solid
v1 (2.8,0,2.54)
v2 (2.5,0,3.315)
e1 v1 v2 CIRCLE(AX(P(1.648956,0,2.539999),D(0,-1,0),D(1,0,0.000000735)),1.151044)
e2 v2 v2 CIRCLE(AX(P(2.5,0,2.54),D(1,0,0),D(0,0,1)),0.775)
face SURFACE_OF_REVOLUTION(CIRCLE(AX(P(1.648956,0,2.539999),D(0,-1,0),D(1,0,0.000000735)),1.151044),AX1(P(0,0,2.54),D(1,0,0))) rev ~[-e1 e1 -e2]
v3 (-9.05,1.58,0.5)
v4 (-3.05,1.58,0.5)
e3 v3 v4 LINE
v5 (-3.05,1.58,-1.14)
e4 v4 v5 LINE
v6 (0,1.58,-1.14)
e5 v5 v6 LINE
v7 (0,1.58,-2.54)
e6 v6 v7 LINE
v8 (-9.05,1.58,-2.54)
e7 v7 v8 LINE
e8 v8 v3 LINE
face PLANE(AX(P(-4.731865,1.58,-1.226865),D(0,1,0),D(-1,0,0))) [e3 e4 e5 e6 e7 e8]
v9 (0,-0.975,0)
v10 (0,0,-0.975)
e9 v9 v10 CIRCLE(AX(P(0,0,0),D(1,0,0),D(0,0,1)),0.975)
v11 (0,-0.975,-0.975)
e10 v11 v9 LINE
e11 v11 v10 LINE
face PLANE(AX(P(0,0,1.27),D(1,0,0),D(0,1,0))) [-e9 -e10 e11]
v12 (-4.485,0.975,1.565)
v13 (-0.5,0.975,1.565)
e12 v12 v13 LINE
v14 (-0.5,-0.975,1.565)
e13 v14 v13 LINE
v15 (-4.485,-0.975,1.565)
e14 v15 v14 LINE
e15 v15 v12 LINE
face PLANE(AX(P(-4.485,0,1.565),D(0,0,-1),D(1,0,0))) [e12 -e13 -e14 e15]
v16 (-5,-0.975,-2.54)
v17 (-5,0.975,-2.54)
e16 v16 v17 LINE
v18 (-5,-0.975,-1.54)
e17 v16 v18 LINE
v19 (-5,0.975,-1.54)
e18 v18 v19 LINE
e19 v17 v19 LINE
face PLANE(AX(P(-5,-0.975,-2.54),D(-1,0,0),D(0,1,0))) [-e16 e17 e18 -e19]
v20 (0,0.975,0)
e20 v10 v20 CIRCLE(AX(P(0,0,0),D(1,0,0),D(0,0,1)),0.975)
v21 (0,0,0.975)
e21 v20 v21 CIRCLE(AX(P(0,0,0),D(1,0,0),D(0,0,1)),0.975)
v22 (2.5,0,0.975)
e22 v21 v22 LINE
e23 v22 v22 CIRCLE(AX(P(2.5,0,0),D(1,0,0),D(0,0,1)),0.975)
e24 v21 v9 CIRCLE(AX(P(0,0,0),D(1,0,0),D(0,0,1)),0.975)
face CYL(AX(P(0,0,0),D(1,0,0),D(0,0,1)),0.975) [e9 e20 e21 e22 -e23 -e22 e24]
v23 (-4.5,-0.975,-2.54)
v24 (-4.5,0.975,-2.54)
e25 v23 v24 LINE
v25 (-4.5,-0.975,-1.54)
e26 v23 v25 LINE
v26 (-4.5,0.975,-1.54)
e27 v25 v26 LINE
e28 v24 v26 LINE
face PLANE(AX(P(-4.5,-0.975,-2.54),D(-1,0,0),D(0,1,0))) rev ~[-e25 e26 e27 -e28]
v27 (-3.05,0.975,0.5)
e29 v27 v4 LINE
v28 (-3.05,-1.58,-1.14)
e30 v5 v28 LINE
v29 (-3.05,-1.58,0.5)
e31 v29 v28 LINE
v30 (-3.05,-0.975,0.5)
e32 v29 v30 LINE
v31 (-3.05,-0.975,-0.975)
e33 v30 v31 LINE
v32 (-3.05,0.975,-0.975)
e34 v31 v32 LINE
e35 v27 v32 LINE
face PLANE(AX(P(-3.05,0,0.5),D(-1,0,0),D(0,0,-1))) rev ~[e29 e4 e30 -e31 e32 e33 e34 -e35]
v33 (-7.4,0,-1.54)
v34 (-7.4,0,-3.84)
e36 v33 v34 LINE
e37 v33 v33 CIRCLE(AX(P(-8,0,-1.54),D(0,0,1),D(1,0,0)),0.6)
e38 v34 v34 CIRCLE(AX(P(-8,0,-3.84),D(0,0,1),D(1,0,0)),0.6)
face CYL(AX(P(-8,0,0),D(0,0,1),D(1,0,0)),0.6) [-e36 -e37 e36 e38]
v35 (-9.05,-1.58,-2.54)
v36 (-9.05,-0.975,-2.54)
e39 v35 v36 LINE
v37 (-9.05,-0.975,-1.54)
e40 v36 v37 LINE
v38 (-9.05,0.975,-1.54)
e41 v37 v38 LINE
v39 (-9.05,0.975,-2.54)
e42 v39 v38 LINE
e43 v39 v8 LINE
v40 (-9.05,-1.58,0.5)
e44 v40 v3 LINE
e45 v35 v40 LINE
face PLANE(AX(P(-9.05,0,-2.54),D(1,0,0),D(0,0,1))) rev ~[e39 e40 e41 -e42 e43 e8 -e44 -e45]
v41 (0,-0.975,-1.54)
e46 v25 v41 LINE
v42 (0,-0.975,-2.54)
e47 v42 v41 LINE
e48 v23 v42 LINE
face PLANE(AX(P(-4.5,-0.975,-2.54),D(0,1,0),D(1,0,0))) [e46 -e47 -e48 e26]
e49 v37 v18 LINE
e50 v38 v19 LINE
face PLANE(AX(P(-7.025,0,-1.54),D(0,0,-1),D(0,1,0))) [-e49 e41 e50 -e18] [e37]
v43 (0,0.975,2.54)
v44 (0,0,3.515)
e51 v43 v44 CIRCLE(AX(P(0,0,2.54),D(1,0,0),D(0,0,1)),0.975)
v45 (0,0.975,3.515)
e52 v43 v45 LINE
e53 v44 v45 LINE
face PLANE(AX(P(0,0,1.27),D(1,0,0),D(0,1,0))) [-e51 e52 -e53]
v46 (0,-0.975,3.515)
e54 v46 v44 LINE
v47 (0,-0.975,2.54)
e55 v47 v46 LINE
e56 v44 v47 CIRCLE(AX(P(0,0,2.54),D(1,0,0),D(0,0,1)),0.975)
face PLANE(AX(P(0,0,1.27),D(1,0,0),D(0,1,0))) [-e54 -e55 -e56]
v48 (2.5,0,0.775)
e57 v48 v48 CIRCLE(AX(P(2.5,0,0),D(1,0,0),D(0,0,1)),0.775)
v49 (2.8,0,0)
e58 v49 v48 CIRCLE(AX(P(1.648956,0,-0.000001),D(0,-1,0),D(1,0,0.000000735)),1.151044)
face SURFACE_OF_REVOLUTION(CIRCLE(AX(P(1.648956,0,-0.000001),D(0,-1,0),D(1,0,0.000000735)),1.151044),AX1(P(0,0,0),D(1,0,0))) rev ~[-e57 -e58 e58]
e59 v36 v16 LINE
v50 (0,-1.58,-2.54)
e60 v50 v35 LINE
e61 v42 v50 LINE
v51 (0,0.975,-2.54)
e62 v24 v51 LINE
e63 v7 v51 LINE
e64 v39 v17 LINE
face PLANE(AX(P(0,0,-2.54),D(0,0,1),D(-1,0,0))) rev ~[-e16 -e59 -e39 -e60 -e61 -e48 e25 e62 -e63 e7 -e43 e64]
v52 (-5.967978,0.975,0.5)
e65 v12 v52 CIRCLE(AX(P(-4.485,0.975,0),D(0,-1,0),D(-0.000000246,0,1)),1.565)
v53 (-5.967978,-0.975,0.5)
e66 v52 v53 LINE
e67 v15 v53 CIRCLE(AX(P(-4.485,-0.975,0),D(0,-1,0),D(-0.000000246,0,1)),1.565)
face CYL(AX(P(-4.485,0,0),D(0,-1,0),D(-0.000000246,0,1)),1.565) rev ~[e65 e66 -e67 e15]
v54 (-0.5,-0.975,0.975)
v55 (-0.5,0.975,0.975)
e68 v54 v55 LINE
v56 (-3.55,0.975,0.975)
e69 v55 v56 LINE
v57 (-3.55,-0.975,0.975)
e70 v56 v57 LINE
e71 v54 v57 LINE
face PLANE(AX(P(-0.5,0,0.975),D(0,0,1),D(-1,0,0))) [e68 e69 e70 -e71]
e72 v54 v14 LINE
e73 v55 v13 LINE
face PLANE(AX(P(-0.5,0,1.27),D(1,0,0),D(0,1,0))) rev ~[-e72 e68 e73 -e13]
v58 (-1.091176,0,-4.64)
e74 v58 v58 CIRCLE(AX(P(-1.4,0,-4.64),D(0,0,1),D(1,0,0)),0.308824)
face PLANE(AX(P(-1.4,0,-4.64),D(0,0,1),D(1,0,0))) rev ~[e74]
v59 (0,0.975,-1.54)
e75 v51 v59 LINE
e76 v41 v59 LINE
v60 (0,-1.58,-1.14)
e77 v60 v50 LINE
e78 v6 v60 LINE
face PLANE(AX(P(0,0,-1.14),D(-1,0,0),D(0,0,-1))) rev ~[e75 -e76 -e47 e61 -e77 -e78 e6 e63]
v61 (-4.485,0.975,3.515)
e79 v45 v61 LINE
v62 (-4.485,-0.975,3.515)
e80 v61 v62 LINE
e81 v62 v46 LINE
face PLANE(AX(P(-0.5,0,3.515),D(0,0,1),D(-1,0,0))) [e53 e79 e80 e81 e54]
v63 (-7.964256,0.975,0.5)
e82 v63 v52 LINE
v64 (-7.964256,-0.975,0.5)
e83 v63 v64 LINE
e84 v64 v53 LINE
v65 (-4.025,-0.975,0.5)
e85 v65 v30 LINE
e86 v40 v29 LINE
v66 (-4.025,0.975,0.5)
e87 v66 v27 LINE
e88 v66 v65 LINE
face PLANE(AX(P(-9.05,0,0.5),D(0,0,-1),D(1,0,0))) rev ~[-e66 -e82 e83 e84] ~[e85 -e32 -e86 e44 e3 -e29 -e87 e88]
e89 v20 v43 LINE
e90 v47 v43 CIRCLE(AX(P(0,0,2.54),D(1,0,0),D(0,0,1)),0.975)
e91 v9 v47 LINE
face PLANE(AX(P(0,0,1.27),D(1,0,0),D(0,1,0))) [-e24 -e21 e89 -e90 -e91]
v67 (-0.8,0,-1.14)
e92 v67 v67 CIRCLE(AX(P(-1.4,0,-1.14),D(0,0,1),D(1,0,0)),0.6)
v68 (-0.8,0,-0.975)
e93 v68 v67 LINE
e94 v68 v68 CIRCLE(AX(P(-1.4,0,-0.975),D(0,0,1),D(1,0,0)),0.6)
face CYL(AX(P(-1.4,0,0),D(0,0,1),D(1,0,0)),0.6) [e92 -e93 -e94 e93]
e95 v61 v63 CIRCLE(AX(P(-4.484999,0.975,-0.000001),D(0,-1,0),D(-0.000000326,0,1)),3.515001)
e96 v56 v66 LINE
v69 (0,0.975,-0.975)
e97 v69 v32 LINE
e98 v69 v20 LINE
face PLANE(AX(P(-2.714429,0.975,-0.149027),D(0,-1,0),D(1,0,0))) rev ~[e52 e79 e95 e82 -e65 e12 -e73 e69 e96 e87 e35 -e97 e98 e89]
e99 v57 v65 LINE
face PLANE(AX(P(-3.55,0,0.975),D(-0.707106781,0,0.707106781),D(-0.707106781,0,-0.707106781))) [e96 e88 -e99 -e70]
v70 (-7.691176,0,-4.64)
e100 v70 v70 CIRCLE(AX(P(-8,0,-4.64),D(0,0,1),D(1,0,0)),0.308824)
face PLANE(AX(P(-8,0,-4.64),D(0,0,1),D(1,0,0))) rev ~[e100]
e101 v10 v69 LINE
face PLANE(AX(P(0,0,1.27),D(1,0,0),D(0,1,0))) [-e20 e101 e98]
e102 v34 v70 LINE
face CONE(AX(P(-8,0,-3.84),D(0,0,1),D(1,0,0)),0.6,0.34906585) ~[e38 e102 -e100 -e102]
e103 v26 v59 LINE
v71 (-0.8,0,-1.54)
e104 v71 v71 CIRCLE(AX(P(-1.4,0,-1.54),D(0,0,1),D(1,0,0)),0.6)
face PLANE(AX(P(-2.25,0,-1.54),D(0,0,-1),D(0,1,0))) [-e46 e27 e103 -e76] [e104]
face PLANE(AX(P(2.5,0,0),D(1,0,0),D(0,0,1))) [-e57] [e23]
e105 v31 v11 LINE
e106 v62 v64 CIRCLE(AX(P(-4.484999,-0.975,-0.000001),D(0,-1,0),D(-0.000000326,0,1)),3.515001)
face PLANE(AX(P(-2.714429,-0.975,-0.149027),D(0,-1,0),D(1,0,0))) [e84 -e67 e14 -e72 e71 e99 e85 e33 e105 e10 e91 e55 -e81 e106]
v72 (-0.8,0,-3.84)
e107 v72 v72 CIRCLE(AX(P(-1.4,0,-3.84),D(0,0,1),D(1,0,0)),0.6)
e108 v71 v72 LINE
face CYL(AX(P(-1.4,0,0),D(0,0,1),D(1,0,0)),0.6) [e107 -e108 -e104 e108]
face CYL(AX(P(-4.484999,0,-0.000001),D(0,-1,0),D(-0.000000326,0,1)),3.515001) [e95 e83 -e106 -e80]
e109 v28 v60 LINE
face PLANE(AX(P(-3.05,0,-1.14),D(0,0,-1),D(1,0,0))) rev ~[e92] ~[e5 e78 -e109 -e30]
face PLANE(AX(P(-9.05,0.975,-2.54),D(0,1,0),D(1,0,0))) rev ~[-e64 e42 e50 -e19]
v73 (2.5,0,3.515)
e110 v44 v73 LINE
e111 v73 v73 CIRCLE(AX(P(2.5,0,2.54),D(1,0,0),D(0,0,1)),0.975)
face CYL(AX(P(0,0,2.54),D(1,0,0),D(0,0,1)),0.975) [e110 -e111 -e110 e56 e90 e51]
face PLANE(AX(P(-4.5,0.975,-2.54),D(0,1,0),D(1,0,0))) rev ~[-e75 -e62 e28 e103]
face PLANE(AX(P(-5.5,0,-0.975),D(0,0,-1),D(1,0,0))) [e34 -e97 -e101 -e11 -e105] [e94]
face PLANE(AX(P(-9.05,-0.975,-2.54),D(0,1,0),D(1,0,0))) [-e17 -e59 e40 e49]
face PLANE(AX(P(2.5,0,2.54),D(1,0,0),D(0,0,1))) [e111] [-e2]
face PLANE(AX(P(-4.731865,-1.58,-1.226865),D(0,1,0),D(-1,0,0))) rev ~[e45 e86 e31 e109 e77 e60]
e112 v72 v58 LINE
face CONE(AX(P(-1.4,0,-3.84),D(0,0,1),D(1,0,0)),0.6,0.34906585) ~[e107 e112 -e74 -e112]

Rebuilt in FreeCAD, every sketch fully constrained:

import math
import FreeCAD as App
import Part
import Sketcher

V = App.Vector
Q = App.Units.Quantity


def edges_at(feature, points):
    """Names of the edges that pass closest to the given points."""
    edges = feature.Shape.Edges
    near = lambda p: min(range(len(edges)), key=lambda i: edges[i].distToShape(Part.Vertex(*p))[0])
    return sorted({f"Edge{near(p) + 1}" for p in points})


def add_polygon(sketch, points):
    """Adds a closed chain of lines whose ends are joined by coincident constraints."""
    first, n = sketch.GeometryCount, len(points)
    for a, b in zip(points, points[1:] + points[:1]):
        sketch.addGeometry(Part.LineSegment(App.Vector(*a, 0), App.Vector(*b, 0)), False)
    for i in range(n):
        sketch.addConstraint(Sketcher.Constraint("Coincident", first + i, 2, first + (i + 1) % n, 1))

doc = App.newDocument("Part")
body = doc.addObject("PartDesign::Body", "Body")

sketch1 = doc.addObject("Sketcher::SketchObject", "Sketch")
body.addObject(sketch1)
sketch1.AttachmentSupport = (doc.YZ_Plane, [""])
sketch1.MapMode = "FlatFace"
add_polygon(sketch1, [(-0.975, 3.515), (-0.975, -0.975), (0.975, -0.975), (0.975, 3.515)])
sketch1.addConstraint([
    Sketcher.Constraint("Vertical", 0),
    Sketcher.Constraint("Horizontal", 1),
    Sketcher.Constraint("Vertical", 2),
    Sketcher.Constraint("Horizontal", 3),
    Sketcher.Constraint("DistanceX", 1, 1, 1, 2, Q("1.95 mm")),
    Sketcher.Constraint("DistanceY", 0, 2, 0, 1, Q("4.49 mm")),
    Sketcher.Constraint("DistanceX", 0, 2, -1, 1, Q("0.975 mm")),
    Sketcher.Constraint("DistanceY", 0, 2, -1, 1, Q("0.975 mm")),
])
pad1 = doc.addObject("PartDesign::Pad", "Pad")
body.addObject(pad1)
pad1.Profile = sketch1
pad1.Length = 0.5
pad1.Reversed = True

sketch2 = doc.addObject("Sketcher::SketchObject", "Sketch001")
body.addObject(sketch2)
sketch2.AttachmentSupport = (doc.XZ_Plane, [""])
sketch2.MapMode = "FlatFace"
sketch2.addGeometry([
    Part.LineSegment(V(0, 0.975, 0), V(0, 0, 0)),
    Part.LineSegment(V(0, 0, 0), V(2.8, 0, 0)),
    Part.ArcOfCircle(Part.Circle(V(1.648956, -0.000001, 0), V(0, 0, 1), 1.151044), math.radians(0.000042), math.radians(42.322477)),
    Part.LineSegment(V(2.5, 0.775, 0), V(2.5, 0.975, 0)),
    Part.LineSegment(V(2.5, 0.975, 0), V(0, 0.975, 0)),
], False)
sketch2.addConstraint([
    Sketcher.Constraint("Coincident", 0, 2, 1, 1),
    Sketcher.Constraint("Coincident", 1, 2, 2, 1),
    Sketcher.Constraint("Coincident", 2, 2, 3, 1),
    Sketcher.Constraint("Coincident", 3, 2, 4, 1),
    Sketcher.Constraint("Coincident", 4, 2, 0, 1),
    Sketcher.Constraint("Vertical", 0),
    Sketcher.Constraint("Horizontal", 1),
    Sketcher.Constraint("Vertical", 3),
    Sketcher.Constraint("Horizontal", 4),
    Sketcher.Constraint("Coincident", 0, 2, -1, 1),
    Sketcher.Constraint("PointOnObject", 2, 3, -1),
    Sketcher.Constraint("DistanceX", 1, 1, 1, 2, Q("2.8 mm")),
    Sketcher.Constraint("DistanceX", 4, 2, 4, 1, Q("2.5 mm")),
    Sketcher.Constraint("DistanceY", 3, 1, 3, 2, Q("0.2 mm")),
    Sketcher.Constraint("DistanceY", 0, 2, 0, 1, Q("0.975 mm")),
])
revolution = doc.addObject("PartDesign::Revolution", "Revolution")
body.addObject(revolution)
revolution.Profile = sketch2
revolution.ReferenceAxis = (sketch2, ["H_Axis"])
revolution.Angle = 360
doc.recompute()

linearpattern = doc.addObject("PartDesign::LinearPattern", "LinearPattern")
body.addObject(linearpattern)
linearpattern.Originals = [revolution]
linearpattern.Direction = (doc.Z_Axis, [""])
linearpattern.Mode = "offset"
linearpattern.Offset = 2.54
linearpattern.Occurrences = 2
body.Tip = linearpattern

sketch3 = doc.addObject("Sketcher::SketchObject", "Sketch002")
body.addObject(sketch3)
sketch3.AttachmentSupport = (doc.XZ_Plane, [""])
sketch3.MapMode = "FlatFace"
sketch3.addGeometry([
    Part.LineSegment(V(-0.5, 3.515, 0), V(-4.485, 3.515, 0)),
    Part.ArcOfCircle(Part.Circle(V(-4.484999, -0.000001, 0), V(0, 0, 1), 3.515001), math.radians(90.000019), math.radians(179.999981)),
    Part.LineSegment(V(-8, 0, 0), V(-6.05, 0, 0)),
    Part.ArcOfCircle(Part.Circle(V(-4.485, 0, 0), V(0, 0, 1), 1.565), math.radians(90.000014), math.radians(179.999986)),
    Part.LineSegment(V(-4.485, 1.565, 0), V(-0.5, 1.565, 0)),
    Part.LineSegment(V(-0.5, 1.565, 0), V(-0.5, 3.515, 0)),
], False)
sketch3.addConstraint([
    Sketcher.Constraint("Tangent", 0, 2, 1, 1),
    Sketcher.Constraint("Coincident", 1, 2, 2, 1),
    Sketcher.Constraint("Coincident", 2, 2, 3, 2),
    Sketcher.Constraint("Tangent", 3, 1, 4, 1),
    Sketcher.Constraint("Coincident", 4, 2, 5, 1),
    Sketcher.Constraint("Coincident", 5, 2, 0, 1),
    Sketcher.Constraint("Horizontal", 0),
    Sketcher.Constraint("Horizontal", 2),
    Sketcher.Constraint("Horizontal", 4),
    Sketcher.Constraint("Vertical", 5),
    Sketcher.Constraint("Coincident", 3, 3, 1, 3),
    Sketcher.Constraint("PointOnObject", 1, 3, -1),
    Sketcher.Constraint("PointOnObject", 1, 2, -1),
    Sketcher.Constraint("DistanceX", 1, 2, -1, 1, Q("8 mm")),
    Sketcher.Constraint("Radius", 1, Q("3.515001 mm")),
    Sketcher.Constraint("Radius", 3, Q("1.565 mm")),
    Sketcher.Constraint("DistanceX", 4, 2, -1, 1, Q("0.5 mm")),
])
pad2 = doc.addObject("PartDesign::Pad", "Pad001")
body.addObject(pad2)
pad2.Profile = sketch3
pad2.Length = 1.95
pad2.Midplane = True

sketch4 = doc.addObject("Sketcher::SketchObject", "Sketch003")
body.addObject(sketch4)
sketch4.AttachmentSupport = (doc.XZ_Plane, [""])
sketch4.MapMode = "FlatFace"
add_polygon(sketch4, [(-0.5, 0.975), (-3.55, 0.975), (-5.5, -0.975), (-0.5, -0.975)])
sketch4.addConstraint([
    Sketcher.Constraint("Horizontal", 0),
    Sketcher.Constraint("Horizontal", 2),
    Sketcher.Constraint("Vertical", 3),
    Sketcher.Constraint("DistanceX", 2, 1, 2, 2, Q("5 mm")),
    Sketcher.Constraint("Angle", 1, Q("-135 deg")),
    Sketcher.Constraint("DistanceX", 0, 2, 0, 1, Q("3.05 mm")),
    Sketcher.Constraint("DistanceX", 1, 2, -1, 1, Q("5.5 mm")),
    Sketcher.Constraint("DistanceY", -1, 1, 0, 2, Q("0.975 mm")),
])
pad3 = doc.addObject("PartDesign::Pad", "Pad002")
body.addObject(pad3)
pad3.Profile = sketch4
pad3.Length = 1.95
pad3.Midplane = True

sketch5 = doc.addObject("Sketcher::SketchObject", "Sketch004")
body.addObject(sketch5)
sketch5.AttachmentSupport = (doc.XZ_Plane, [""])
sketch5.MapMode = "FlatFace"
add_polygon(sketch5, [(-9.05, -2.54), (0, -2.54), (0, -1.14), (-3.05, -1.14), (-3.05, 0.5), (-9.05, 0.5)])
sketch5.addConstraint([
    Sketcher.Constraint("Horizontal", 0),
    Sketcher.Constraint("Vertical", 1),
    Sketcher.Constraint("Horizontal", 2),
    Sketcher.Constraint("Vertical", 3),
    Sketcher.Constraint("Horizontal", 4),
    Sketcher.Constraint("Vertical", 5),
    Sketcher.Constraint("PointOnObject", 0, 2, -2),
    Sketcher.Constraint("DistanceX", 4, 2, 4, 1, Q("6 mm")),
    Sketcher.Constraint("DistanceY", 1, 1, 1, 2, Q("1.4 mm")),
    Sketcher.Constraint("DistanceX", 0, 1, 0, 2, Q("9.05 mm")),
    Sketcher.Constraint("DistanceY", 3, 1, 3, 2, Q("1.64 mm")),
    Sketcher.Constraint("DistanceY", -1, 1, 3, 2, Q("0.5 mm")),
])
pad4 = doc.addObject("PartDesign::Pad", "Pad003")
body.addObject(pad4)
pad4.Profile = sketch5
pad4.Length = 3.16
pad4.Midplane = True

sketch6 = doc.addObject("Sketcher::SketchObject", "Sketch005")
body.addObject(sketch6)
sketch6.AttachmentSupport = (doc.XY_Plane, [""])
sketch6.MapMode = "FlatFace"
sketch6.AttachmentOffset = App.Placement(V(0, 0, -2.54), App.Rotation())
add_polygon(sketch6, [(0, -0.975), (-4.5, -0.975), (-4.5, 0.975), (0, 0.975)])
add_polygon(sketch6, [(-5, -0.975), (-9.05, -0.975), (-9.05, 0.975), (-5, 0.975)])
sketch6.addConstraint([
    Sketcher.Constraint("Horizontal", 0),
    Sketcher.Constraint("Vertical", 1),
    Sketcher.Constraint("Horizontal", 2),
    Sketcher.Constraint("Vertical", 3),
    Sketcher.Constraint("Horizontal", 4),
    Sketcher.Constraint("Vertical", 5),
    Sketcher.Constraint("Horizontal", 6),
    Sketcher.Constraint("Vertical", 7),
    Sketcher.Constraint("Symmetric", 2, 2, 3, 2, -1, 1),
    Sketcher.Constraint("Horizontal", 3, 2, 4, 2),
    Sketcher.Constraint("Horizontal", 2, 2, 5, 2),
    Sketcher.Constraint("DistanceX", 0, 2, 0, 1, Q("4.5 mm")),
    Sketcher.Constraint("DistanceX", 6, 2, -1, 1, Q("5 mm")),
    Sketcher.Constraint("DistanceX", 4, 2, 4, 1, Q("4.05 mm")),
    Sketcher.Constraint("DistanceY", 1, 1, 1, 2, Q("1.95 mm")),
])
pocket1 = doc.addObject("PartDesign::Pocket", "Pocket")
body.addObject(pocket1)
pocket1.Profile = sketch6
pocket1.Length = 1
pocket1.Reversed = True

sketch7 = doc.addObject("Sketcher::SketchObject", "Sketch006")
body.addObject(sketch7)
sketch7.AttachmentSupport = (doc.XY_Plane, [""])
sketch7.MapMode = "FlatFace"
sketch7.addGeometry(Part.Circle(V(-1.4, 0, 0), V(0, 0, 1), 0.6), False)
sketch7.addConstraint([
    Sketcher.Constraint("PointOnObject", 0, 3, -1),
    Sketcher.Constraint("Diameter", 0, Q("1.2 mm")),
    Sketcher.Constraint("DistanceX", 0, 3, -1, 1, Q("1.4 mm")),
])
pad5 = doc.addObject("PartDesign::Pad", "Pad004")
body.addObject(pad5)
pad5.Profile = sketch7
pad5.Length = 4.64
pad5.Reversed = True
doc.recompute()

linearpattern2 = doc.addObject("PartDesign::LinearPattern", "LinearPattern001")
body.addObject(linearpattern2)
linearpattern2.Originals = [pad5]
linearpattern2.Direction = (doc.X_Axis, [""])
linearpattern2.Mode = "offset"
linearpattern2.Offset = 6.6
linearpattern2.Occurrences = 2
linearpattern2.Reversed = True
body.Tip = linearpattern2
doc.recompute()

chamfer = doc.addObject("PartDesign::Chamfer", "Chamfer")
body.addObject(chamfer)
chamfer.Base = (linearpattern2, edges_at(linearpattern2, [(-2, 0, -4.64)]))
chamfer.ChamferType = "Distance and Angle"
chamfer.Size = 0.8
chamfer.Angle = 20
doc.recompute()

chamfer2 = doc.addObject("PartDesign::Chamfer", "Chamfer001")
body.addObject(chamfer2)
chamfer2.Base = (chamfer, edges_at(chamfer, [(-8.6, 0, -4.64)]))
chamfer2.ChamferType = "Distance and Angle"
chamfer2.Size = 0.8
chamfer2.Angle = 20

doc.recompute()
